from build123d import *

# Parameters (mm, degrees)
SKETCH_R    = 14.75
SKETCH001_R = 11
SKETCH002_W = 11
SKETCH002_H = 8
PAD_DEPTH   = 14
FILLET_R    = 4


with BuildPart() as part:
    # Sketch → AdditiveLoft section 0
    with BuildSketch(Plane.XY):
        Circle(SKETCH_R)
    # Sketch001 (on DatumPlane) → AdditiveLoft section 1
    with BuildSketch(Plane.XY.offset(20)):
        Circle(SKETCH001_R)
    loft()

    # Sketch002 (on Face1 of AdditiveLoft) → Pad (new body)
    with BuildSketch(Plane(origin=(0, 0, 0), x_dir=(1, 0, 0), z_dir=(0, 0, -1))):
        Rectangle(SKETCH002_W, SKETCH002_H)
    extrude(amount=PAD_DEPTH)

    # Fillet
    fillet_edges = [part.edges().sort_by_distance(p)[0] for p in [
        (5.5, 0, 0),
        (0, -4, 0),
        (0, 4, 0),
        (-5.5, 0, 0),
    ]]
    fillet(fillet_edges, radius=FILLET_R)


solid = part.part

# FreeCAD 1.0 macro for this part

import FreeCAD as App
import Part
import Sketcher
Q = App.Units.Quantity


def edges_at(feature, points):
    """Names of the edges that pass closest to the given points."""
    edges = feature.Shape.Edges
    near = lambda p: min(range(len(edges)), key=lambda i: edges[i].distToShape(Part.Vertex(*p))[0])
    return sorted({f"Edge{near(p) + 1}" for p in points})


def add_polygon(sketch, points):
    """Adds a closed chain of lines whose ends are joined by coincident constraints."""
    first, n = sketch.GeometryCount, len(points)
    for a, b in zip(points, points[1:] + points[:1]):
        sketch.addGeometry(Part.LineSegment(App.Vector(*a, 0), App.Vector(*b, 0)), False)
    for i in range(n):
        sketch.addConstraint(Sketcher.Constraint("Coincident", first + i, 2, first + (i + 1) % n, 1))

doc = App.newDocument("Part")
body = doc.addObject("PartDesign::Body", "Body")

sketch1 = body.newObject("Sketcher::SketchObject", "Sketch")
sketch1.AttachmentSupport = (doc.getObject("XY_Plane"), [""])
sketch1.MapMode = "FlatFace"
sketch1.addGeometry(Part.Circle(App.Vector(0, 0, 0), App.Vector(0, 0, 1), 14.75), False)
sketch1.addConstraint([
    Sketcher.Constraint("Coincident", 0, 3, -1, 1),
    Sketcher.Constraint("Diameter", 0, Q("29.5 mm")),
])

sketch2 = body.newObject("Sketcher::SketchObject", "Sketch001")
sketch2.AttachmentSupport = (doc.getObject("XY_Plane"), [""])
sketch2.MapMode = "FlatFace"
sketch2.AttachmentOffset = App.Placement(App.Vector(0, 0, 20), App.Rotation())
sketch2.addGeometry(Part.Circle(App.Vector(0, 0, 0), App.Vector(0, 0, 1), 11), False)
sketch2.addConstraint([
    Sketcher.Constraint("Coincident", 0, 3, -1, 1),
    Sketcher.Constraint("Diameter", 0, Q("22 mm")),
])

additiveloft = body.newObject("PartDesign::AdditiveLoft", "AdditiveLoft")
additiveloft.Profile = sketch1
additiveloft.Sections = [sketch2]

sketch3 = body.newObject("Sketcher::SketchObject", "Sketch002")
sketch3.AttachmentSupport = (doc.getObject("XY_Plane"), [""])
sketch3.MapMode = "FlatFace"
add_polygon(sketch3, [(-5.5, -4), (-5.5, 4), (5.5, 4), (5.5, -4)])
sketch3.addConstraint([
    Sketcher.Constraint("Vertical", 0),
    Sketcher.Constraint("Horizontal", 1),
    Sketcher.Constraint("Vertical", 2),
    Sketcher.Constraint("Horizontal", 3),
    Sketcher.Constraint("Symmetric", 0, 2, 2, 2, -1, 1),
    Sketcher.Constraint("DistanceX", 1, 1, 1, 2, Q("11 mm")),
    Sketcher.Constraint("DistanceY", 0, 1, 0, 2, Q("8 mm")),
])
pad1 = body.newObject("PartDesign::Pad", "Pad")
pad1.Profile = sketch3
pad1.Length = 14
pad1.Reversed = True
doc.recompute()

fillet = body.newObject("PartDesign::Fillet", "Fillet")
fillet.Base = (pad1, edges_at(pad1, [
    (5.5, 0, 0),
    (0, -4, 0),
    (0, 4, 0),
    (-5.5, 0, 0),
]))
fillet.Radius = 4

doc.recompute()
